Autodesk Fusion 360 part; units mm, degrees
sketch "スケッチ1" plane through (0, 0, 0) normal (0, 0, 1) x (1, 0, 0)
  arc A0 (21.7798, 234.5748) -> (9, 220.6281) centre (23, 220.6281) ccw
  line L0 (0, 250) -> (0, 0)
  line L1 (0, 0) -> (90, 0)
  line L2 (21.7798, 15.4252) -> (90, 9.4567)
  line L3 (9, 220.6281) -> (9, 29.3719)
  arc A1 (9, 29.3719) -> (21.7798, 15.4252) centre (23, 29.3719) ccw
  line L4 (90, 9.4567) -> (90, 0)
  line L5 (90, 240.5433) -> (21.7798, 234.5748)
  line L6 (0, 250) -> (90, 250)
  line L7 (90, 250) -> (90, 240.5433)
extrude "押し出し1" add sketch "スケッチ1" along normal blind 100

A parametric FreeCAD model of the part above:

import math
import FreeCAD as App
import Part
import Sketcher

V = App.Vector
Q = App.Units.Quantity

doc = App.newDocument("Part")
params = doc.addObject("Spreadsheet::Sheet", "Params")
for row, (alias, value) in enumerate([
    ("sketch1_radius", "14 mm"),
    ("sketch1_width", "90 mm"),
    ("sketch1_height", "250 mm"),
    ("pad1_length", "100 mm"),
], start=1):
    params.set(f"A{row}", alias)
    params.set(f"B{row}", "=" + value)
    params.setAlias(f"B{row}", alias)

body = doc.addObject("PartDesign::Body", "Body")

# Sketch on XY plane
sketch1 = doc.addObject("Sketcher::SketchObject", "Sketch")
body.addObject(sketch1)
sketch1.AttachmentSupport = (doc.XY_Plane, [""])
sketch1.MapMode = "FlatFace"
sketch1.addGeometry([
    Part.ArcOfCircle(Part.Circle(V(23, 220.6281, 0), V(0, 0, 1), 13.999976), math.radians(95.000089), math.radians(180)),  # 0
    Part.LineSegment(V(21.7798, 234.5748, 0), V(90, 240.5433, 0)),  # 1
    Part.LineSegment(V(90, 240.5433, 0), V(90, 250, 0)),  # 2
    Part.LineSegment(V(90, 250, 0), V(0, 250, 0)),  # 3
    Part.LineSegment(V(0, 250, 0), V(0, 0, 0)),  # 4
    Part.LineSegment(V(0, 0, 0), V(90, 0, 0)),  # 5
    Part.LineSegment(V(90, 0, 0), V(90, 9.4567, 0)),  # 6
    Part.LineSegment(V(90, 9.4567, 0), V(21.7798, 15.4252, 0)),  # 7
    Part.ArcOfCircle(Part.Circle(V(23, 29.3719, 0), V(0, 0, 1), 14), math.radians(180), math.radians(264.999911)),  # 8
    Part.LineSegment(V(9, 29.3719, 0), V(9, 220.6281, 0)),  # 9
], False)
sketch1.addConstraint([
    Sketcher.Constraint("Tangent", 0, 1, 1, 1),
    Sketcher.Constraint("Coincident", 1, 2, 2, 1),
    Sketcher.Constraint("Coincident", 2, 2, 3, 1),
    Sketcher.Constraint("Coincident", 3, 2, 4, 1),
    Sketcher.Constraint("Coincident", 4, 2, 5, 1),
    Sketcher.Constraint("Coincident", 5, 2, 6, 1),
    Sketcher.Constraint("Coincident", 6, 2, 7, 1),
    Sketcher.Constraint("Tangent", 7, 2, 8, 2),
    Sketcher.Constraint("Tangent", 8, 1, 9, 1),
    Sketcher.Constraint("Tangent", 9, 2, 0, 2),
    Sketcher.Constraint("Vertical", 2),
    Sketcher.Constraint("Horizontal", 3),
    Sketcher.Constraint("Vertical", 4),
    Sketcher.Constraint("Horizontal", 5),
    Sketcher.Constraint("Vertical", 6),
    Sketcher.Constraint("Vertical", 9),
    Sketcher.Constraint("Coincident", 4, 2, -1, 1),
    Sketcher.Constraint("Equal", 0, 8),
    Sketcher.Constraint("Vertical", 2, 2, 5, 2),
    Sketcher.Constraint("Vertical", 0, 1, 7, 2),
    Sketcher.Constraint("Equal", 2, 6),
    Sketcher.Constraint("Radius", 0, Q("14 mm")),
    Sketcher.Constraint("DistanceX", 3, 2, 3, 1, Q("90 mm")),
    Sketcher.Constraint("DistanceY", 4, 2, 4, 1, Q("250 mm")),
    Sketcher.Constraint("Angle", 1, Q("5 deg")),
    Sketcher.Constraint("DistanceX", -1, 1, 0, 3, Q("23 mm")),
    Sketcher.Constraint("DistanceY", 2, 1, 2, 2, Q("9.4567 mm")),
])
sketch1.setExpression("Constraints[21]", "Params.sketch1_radius")
sketch1.setExpression("Constraints[22]", "Params.sketch1_width")
sketch1.setExpression("Constraints[23]", "Params.sketch1_height")
pad1 = doc.addObject("PartDesign::Pad", "Pad")
body.addObject(pad1)
pad1.Profile = sketch1
pad1.setExpression("Length", "Params.pad1_length")

doc.recompute()
